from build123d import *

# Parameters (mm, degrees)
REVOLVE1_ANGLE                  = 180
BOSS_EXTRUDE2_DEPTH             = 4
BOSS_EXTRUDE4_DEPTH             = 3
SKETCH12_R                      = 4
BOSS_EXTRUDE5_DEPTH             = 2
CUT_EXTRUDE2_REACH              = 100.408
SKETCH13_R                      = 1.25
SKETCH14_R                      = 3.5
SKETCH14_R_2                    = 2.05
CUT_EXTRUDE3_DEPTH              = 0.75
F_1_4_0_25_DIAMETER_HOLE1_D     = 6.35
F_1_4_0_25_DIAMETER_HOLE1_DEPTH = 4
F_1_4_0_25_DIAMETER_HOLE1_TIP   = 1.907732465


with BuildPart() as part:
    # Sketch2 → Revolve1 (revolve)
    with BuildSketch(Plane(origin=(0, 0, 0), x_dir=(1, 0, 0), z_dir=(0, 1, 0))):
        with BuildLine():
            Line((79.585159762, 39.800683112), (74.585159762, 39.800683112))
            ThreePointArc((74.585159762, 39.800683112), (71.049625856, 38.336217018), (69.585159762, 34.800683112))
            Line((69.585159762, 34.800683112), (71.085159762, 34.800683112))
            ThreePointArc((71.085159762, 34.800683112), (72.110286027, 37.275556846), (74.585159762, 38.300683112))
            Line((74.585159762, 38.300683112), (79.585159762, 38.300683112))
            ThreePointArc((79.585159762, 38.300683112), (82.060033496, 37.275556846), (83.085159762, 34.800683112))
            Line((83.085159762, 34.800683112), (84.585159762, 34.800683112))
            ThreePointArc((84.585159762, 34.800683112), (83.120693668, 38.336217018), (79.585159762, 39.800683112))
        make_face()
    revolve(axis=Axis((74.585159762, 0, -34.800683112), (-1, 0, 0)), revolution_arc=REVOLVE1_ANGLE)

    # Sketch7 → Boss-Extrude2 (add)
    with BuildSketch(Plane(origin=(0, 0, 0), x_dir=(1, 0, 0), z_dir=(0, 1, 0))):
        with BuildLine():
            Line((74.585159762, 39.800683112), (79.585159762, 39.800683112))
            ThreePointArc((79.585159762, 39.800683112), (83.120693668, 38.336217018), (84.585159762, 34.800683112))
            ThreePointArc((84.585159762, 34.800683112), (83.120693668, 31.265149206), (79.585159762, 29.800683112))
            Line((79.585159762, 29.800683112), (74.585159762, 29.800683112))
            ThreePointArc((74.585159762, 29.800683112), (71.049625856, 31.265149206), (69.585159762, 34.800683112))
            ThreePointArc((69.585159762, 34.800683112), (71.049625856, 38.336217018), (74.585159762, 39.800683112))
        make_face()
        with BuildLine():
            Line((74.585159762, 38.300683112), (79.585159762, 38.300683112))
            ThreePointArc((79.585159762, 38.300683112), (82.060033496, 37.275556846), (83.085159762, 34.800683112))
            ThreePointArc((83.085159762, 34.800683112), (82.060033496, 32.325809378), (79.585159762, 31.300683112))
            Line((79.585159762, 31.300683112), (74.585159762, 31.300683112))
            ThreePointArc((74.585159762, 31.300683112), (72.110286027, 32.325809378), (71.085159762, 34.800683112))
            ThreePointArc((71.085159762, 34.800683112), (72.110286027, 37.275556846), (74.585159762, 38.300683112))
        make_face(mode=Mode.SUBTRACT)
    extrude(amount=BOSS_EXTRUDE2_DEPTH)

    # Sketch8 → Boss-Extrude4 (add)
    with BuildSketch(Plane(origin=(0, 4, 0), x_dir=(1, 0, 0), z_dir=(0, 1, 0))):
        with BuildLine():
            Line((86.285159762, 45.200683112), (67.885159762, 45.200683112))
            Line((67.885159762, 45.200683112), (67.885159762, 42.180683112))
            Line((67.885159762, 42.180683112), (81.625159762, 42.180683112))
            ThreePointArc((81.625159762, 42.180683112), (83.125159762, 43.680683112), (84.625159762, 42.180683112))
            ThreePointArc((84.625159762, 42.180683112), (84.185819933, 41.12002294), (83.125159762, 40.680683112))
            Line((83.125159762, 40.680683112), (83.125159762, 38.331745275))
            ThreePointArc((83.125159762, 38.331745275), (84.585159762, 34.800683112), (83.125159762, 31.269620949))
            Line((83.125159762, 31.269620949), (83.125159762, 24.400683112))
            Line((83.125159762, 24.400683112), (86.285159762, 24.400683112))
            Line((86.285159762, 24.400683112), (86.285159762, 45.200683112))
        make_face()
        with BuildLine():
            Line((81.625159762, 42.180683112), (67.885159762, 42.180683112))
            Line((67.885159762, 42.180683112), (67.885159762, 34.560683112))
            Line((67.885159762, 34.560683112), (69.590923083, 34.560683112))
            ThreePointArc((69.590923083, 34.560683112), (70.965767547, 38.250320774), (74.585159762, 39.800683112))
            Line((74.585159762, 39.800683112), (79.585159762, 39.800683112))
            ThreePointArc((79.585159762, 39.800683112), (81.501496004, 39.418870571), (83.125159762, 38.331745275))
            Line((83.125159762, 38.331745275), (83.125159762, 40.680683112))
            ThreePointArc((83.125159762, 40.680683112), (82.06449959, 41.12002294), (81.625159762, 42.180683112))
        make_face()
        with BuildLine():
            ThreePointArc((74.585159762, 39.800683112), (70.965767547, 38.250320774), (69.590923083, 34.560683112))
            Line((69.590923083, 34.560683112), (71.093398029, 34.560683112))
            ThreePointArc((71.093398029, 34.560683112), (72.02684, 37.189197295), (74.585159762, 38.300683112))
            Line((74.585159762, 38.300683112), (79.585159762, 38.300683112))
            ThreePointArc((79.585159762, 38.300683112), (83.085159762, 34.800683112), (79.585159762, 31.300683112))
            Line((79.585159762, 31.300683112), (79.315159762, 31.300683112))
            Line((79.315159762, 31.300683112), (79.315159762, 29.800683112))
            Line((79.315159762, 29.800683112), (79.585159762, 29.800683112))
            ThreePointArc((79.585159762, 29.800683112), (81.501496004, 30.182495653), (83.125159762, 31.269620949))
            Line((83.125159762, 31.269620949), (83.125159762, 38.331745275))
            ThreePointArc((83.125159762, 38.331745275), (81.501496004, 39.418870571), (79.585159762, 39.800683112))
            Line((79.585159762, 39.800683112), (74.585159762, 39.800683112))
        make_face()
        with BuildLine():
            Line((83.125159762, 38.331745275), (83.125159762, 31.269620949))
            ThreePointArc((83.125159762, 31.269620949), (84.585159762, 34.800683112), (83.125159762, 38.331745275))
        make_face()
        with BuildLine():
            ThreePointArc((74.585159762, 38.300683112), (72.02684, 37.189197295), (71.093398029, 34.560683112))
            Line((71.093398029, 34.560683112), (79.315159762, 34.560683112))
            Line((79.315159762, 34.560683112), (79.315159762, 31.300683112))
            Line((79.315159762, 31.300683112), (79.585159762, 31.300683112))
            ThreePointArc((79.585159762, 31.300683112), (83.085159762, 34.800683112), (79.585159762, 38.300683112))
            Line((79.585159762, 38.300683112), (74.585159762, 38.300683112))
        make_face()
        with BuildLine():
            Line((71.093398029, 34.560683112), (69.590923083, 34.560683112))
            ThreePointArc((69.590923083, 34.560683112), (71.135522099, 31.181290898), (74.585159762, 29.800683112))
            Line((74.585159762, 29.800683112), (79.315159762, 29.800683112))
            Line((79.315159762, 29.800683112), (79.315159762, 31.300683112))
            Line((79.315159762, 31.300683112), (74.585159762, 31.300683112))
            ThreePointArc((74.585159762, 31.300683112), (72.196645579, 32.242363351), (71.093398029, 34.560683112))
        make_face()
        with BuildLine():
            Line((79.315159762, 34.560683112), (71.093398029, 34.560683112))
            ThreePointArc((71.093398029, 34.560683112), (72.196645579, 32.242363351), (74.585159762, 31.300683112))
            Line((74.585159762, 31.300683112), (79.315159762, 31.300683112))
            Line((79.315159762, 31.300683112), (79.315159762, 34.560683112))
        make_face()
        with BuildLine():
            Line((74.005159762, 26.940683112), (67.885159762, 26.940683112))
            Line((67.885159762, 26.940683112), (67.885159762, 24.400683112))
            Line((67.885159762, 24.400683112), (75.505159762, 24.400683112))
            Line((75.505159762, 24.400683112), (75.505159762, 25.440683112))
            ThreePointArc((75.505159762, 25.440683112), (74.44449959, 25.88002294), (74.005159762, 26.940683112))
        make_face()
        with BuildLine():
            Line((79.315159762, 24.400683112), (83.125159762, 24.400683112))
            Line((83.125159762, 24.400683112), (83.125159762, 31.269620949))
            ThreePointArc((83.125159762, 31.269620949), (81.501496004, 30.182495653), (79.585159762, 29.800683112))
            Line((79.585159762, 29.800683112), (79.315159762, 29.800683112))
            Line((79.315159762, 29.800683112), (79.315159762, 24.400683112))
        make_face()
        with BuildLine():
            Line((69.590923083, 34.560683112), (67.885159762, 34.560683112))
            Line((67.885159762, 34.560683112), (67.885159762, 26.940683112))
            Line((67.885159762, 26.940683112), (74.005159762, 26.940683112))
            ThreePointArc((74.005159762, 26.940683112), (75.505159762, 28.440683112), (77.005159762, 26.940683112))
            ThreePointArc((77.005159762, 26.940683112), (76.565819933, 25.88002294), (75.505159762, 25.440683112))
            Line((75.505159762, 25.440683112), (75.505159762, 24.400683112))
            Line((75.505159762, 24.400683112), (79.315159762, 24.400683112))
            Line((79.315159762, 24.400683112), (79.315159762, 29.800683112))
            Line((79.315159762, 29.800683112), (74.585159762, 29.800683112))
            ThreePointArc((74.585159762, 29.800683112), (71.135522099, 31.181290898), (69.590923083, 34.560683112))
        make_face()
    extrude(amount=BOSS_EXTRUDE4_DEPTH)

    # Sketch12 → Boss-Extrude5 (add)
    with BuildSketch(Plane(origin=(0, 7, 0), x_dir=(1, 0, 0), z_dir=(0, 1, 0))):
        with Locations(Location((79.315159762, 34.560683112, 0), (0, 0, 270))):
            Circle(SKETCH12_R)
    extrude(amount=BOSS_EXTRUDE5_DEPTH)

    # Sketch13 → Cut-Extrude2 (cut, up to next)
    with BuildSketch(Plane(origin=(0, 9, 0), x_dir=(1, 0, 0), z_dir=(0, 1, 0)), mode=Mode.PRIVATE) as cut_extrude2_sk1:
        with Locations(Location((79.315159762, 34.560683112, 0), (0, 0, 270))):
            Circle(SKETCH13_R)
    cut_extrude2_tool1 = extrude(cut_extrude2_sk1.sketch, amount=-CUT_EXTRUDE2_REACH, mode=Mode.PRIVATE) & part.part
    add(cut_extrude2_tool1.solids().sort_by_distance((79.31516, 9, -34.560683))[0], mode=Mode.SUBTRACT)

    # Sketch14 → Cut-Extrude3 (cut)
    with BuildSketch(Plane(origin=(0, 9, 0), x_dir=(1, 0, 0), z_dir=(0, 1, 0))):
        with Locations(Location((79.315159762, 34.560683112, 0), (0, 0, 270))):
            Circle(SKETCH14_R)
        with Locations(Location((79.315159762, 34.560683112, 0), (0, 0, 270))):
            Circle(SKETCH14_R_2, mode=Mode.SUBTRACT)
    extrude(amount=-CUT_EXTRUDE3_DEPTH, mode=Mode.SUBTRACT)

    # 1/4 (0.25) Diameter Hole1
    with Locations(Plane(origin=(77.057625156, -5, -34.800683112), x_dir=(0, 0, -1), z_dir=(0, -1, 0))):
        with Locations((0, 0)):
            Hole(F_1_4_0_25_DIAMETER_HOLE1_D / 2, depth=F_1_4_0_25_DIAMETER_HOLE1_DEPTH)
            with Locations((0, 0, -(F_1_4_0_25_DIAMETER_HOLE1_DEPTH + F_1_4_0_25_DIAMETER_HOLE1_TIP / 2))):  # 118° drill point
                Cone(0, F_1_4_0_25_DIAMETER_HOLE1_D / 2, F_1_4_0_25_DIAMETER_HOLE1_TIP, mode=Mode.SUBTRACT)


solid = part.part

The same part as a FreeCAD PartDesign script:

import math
import FreeCAD as App
import Part
import Sketcher
Q = App.Units.Quantity


def add_polygon(sketch, points):
    """Adds a closed chain of lines whose ends are joined by coincident constraints."""
    first, n = sketch.GeometryCount, len(points)
    for a, b in zip(points, points[1:] + points[:1]):
        sketch.addGeometry(Part.LineSegment(App.Vector(*a, 0), App.Vector(*b, 0)), False)
    for i in range(n):
        sketch.addConstraint(Sketcher.Constraint("Coincident", first + i, 2, first + (i + 1) % n, 1))

doc = App.newDocument("Part")
body = doc.addObject("PartDesign::Body", "Body")

# Sketch on XZ plane
sketch1 = body.newObject("Sketcher::SketchObject", "Sketch")
sketch1.AttachmentSupport = (doc.getObject("XZ_Plane"), [""])
sketch1.MapMode = "FlatFace"
sketch1.addGeometry([
    Part.LineSegment(App.Vector(79.6, -39.8, 0), App.Vector(74.6, -39.8, 0)),  # 0
    Part.ArcOfCircle(Part.Circle(App.Vector(74.6, -34.8, 0), App.Vector(0, 0, 1), 5), math.radians(180), math.radians(270)),  # 1
    Part.LineSegment(App.Vector(69.6, -34.8, 0), App.Vector(71.1, -34.8, 0)),  # 2
    Part.ArcOfCircle(Part.Circle(App.Vector(74.6, -34.8, 0), App.Vector(0, 0, 1), 3.5), math.radians(180), math.radians(270)),  # 3
    Part.LineSegment(App.Vector(74.6, -38.3, 0), App.Vector(79.6, -38.3, 0)),  # 4
    Part.ArcOfCircle(Part.Circle(App.Vector(79.6, -34.8, 0), App.Vector(0, 0, 1), 3.5), math.radians(-90), math.radians(0)),  # 5
    Part.LineSegment(App.Vector(83.1, -34.8, 0), App.Vector(84.6, -34.8, 0)),  # 6
    Part.ArcOfCircle(Part.Circle(App.Vector(79.6, -34.8, 0), App.Vector(0, 0, 1), 5), math.radians(-90), math.radians(0)),  # 7
], False)
sketch1.addGeometry(Part.LineSegment(App.Vector(84.6, -34.8, 0), App.Vector(69.6, -34.8, 0)), True)  # axis
sketch1.addConstraint([
    Sketcher.Constraint("Tangent", 0, 2, 1, 2),
    Sketcher.Constraint("Coincident", 1, 1, 2, 1),
    Sketcher.Constraint("Coincident", 2, 2, 3, 1),
    Sketcher.Constraint("Tangent", 3, 2, 4, 1),
    Sketcher.Constraint("Tangent", 4, 2, 5, 1),
    Sketcher.Constraint("Coincident", 5, 2, 6, 1),
    Sketcher.Constraint("Coincident", 6, 2, 7, 2),
    Sketcher.Constraint("Tangent", 7, 1, 0, 1),
    Sketcher.Constraint("Horizontal", 0),
    Sketcher.Constraint("Horizontal", 2),
    Sketcher.Constraint("Horizontal", 4),
    Sketcher.Constraint("Horizontal", 6),
    Sketcher.Constraint("Horizontal", 8),
    Sketcher.Constraint("Coincident", 3, 3, 1, 3),
    Sketcher.Constraint("Coincident", 7, 3, 5, 3),
    Sketcher.Constraint("Coincident", 8, 1, 6, 2),
    Sketcher.Constraint("Coincident", 8, 2, 1, 1),
    Sketcher.Constraint("Equal", 3, 5),
    Sketcher.Constraint("Horizontal", 7, 3, 1, 1),
    Sketcher.Constraint("Radius", 1, Q("5 mm")),
    Sketcher.Constraint("Radius", 3, Q("3.5 mm")),
    Sketcher.Constraint("DistanceX", 0, 2, 0, 1, Q("5 mm")),
    Sketcher.Constraint("DistanceX", -1, 1, 1, 3, Q("74.58516 mm")),
    Sketcher.Constraint("DistanceY", 1, 3, -1, 1, Q("34.800683 mm")),
])
revolution = body.newObject("PartDesign::Revolution", "Revolution")
revolution.Profile = sketch1
revolution.ReferenceAxis = (sketch1, ["Axis0"])
revolution.Angle = 180

# Sketch on XZ plane
sketch2 = body.newObject("Sketcher::SketchObject", "Sketch001")
sketch2.AttachmentSupport = (doc.getObject("XZ_Plane"), [""])
sketch2.MapMode = "FlatFace"
sketch2.addGeometry([
    Part.LineSegment(App.Vector(79.6, -39.8, 0), App.Vector(74.6, -39.8, 0)),  # 0
    Part.ArcOfCircle(Part.Circle(App.Vector(74.6, -34.8, 0), App.Vector(0, 0, 1), 5), math.radians(180), math.radians(270)),  # 1
    Part.ArcOfCircle(Part.Circle(App.Vector(74.6, -34.8, 0), App.Vector(0, 0, 1), 5), math.radians(90), math.radians(180)),  # 2
    Part.LineSegment(App.Vector(74.6, -29.8, 0), App.Vector(79.6, -29.8, 0)),  # 3
    Part.ArcOfCircle(Part.Circle(App.Vector(79.6, -34.8, 0), App.Vector(0, 0, 1), 5), math.radians(0), math.radians(90)),  # 4
    Part.ArcOfCircle(Part.Circle(App.Vector(79.6, -34.8, 0), App.Vector(0, 0, 1), 5), math.radians(-90), math.radians(0)),  # 5
    Part.LineSegment(App.Vector(74.6, -38.3, 0), App.Vector(79.6, -38.3, 0)),  # 6
    Part.ArcOfCircle(Part.Circle(App.Vector(79.6, -34.8, 0), App.Vector(0, 0, 1), 3.5), math.radians(-90), math.radians(0)),  # 7
    Part.ArcOfCircle(Part.Circle(App.Vector(79.6, -34.8, 0), App.Vector(0, 0, 1), 3.5), math.radians(0), math.radians(90)),  # 8
    Part.LineSegment(App.Vector(79.6, -31.3, 0), App.Vector(74.6, -31.3, 0)),  # 9
    Part.ArcOfCircle(Part.Circle(App.Vector(74.6, -34.8, 0), App.Vector(0, 0, 1), 3.5), math.radians(90), math.radians(180)),  # 10
    Part.ArcOfCircle(Part.Circle(App.Vector(74.6, -34.8, 0), App.Vector(0, 0, 1), 3.5), math.radians(180), math.radians(270)),  # 11
], False)
sketch2.addConstraint([
    Sketcher.Constraint("Tangent", 0, 2, 1, 2),
    Sketcher.Constraint("Tangent", 1, 1, 2, 2),
    Sketcher.Constraint("Tangent", 2, 1, 3, 1),
    Sketcher.Constraint("Tangent", 3, 2, 4, 2),
    Sketcher.Constraint("Tangent", 4, 1, 5, 2),
    Sketcher.Constraint("Tangent", 5, 1, 0, 1),
    Sketcher.Constraint("Tangent", 6, 2, 7, 1),
    Sketcher.Constraint("Tangent", 7, 2, 8, 1),
    Sketcher.Constraint("Tangent", 8, 2, 9, 1),
    Sketcher.Constraint("Tangent", 9, 2, 10, 1),
    Sketcher.Constraint("Tangent", 10, 2, 11, 1),
    Sketcher.Constraint("Tangent", 11, 2, 6, 1),
    Sketcher.Constraint("Horizontal", 0),
    Sketcher.Constraint("Horizontal", 3),
    Sketcher.Constraint("Horizontal", 6),
    Sketcher.Constraint("Horizontal", 9),
    Sketcher.Constraint("Coincident", 7, 3, 4, 3),
    Sketcher.Constraint("Coincident", 10, 3, 1, 3),
    Sketcher.Constraint("Equal", 1, 2),
    Sketcher.Constraint("Equal", 2, 4),
    Sketcher.Constraint("Equal", 7, 8),
    Sketcher.Constraint("Horizontal", 11, 3, 1, 1),
    Sketcher.Constraint("Horizontal", 1, 1, 4, 1),
    Sketcher.Constraint("Horizontal", 4, 1, 7, 2),
    Sketcher.Constraint("Horizontal", 7, 2, 10, 2),
    Sketcher.Constraint("Radius", 1, Q("5 mm")),
    Sketcher.Constraint("Radius", 7, Q("3.5 mm")),
    Sketcher.Constraint("DistanceX", 0, 2, 0, 1, Q("5 mm")),
    Sketcher.Constraint("DistanceX", -1, 1, 1, 3, Q("74.58516 mm")),
    Sketcher.Constraint("DistanceY", 1, 3, -1, 1, Q("34.800683 mm")),
])
pad1 = body.newObject("PartDesign::Pad", "Pad")
pad1.Profile = sketch2
pad1.Length = 4
pad1.Reversed = True

# Sketch on XZ plane
sketch3 = body.newObject("Sketcher::SketchObject", "Sketch002")
sketch3.AttachmentSupport = (doc.getObject("XZ_Plane"), [""])
sketch3.MapMode = "FlatFace"
sketch3.AttachmentOffset = App.Placement(App.Vector(0, 0, -4), App.Rotation())
add_polygon(sketch3, [(86.3, -24.4), (86.3, -45.2), (67.9, -45.2), (67.9, -24.4)])  # lines 0-3
sketch3.addGeometry(Part.ArcOfCircle(Part.Circle(App.Vector(83.1, -42.2, 0), App.Vector(0, 0, 1), 1.5), math.radians(180), math.radians(360)), False)  # 4
sketch3.addGeometry(Part.ArcOfCircle(Part.Circle(App.Vector(83.1, -42.2, 0), App.Vector(0, 0, 1), 1.5), math.radians(0), math.radians(90)), False)  # 5
sketch3.addGeometry(Part.ArcOfCircle(Part.Circle(App.Vector(83.1, -42.2, 0), App.Vector(0, 0, 1), 1.5), math.radians(90), math.radians(180)), False)  # 6
sketch3.addGeometry(Part.ArcOfCircle(Part.Circle(App.Vector(75.5, -26.9, 0), App.Vector(0, 0, 1), 1.5), math.radians(180), math.radians(360)), False)  # 7
sketch3.addGeometry(Part.ArcOfCircle(Part.Circle(App.Vector(75.5, -26.9, 0), App.Vector(0, 0, 1), 1.5), math.radians(0), math.radians(90)), False)  # 8
sketch3.addGeometry(Part.ArcOfCircle(Part.Circle(App.Vector(75.5, -26.9, 0), App.Vector(0, 0, 1), 1.5), math.radians(90), math.radians(180)), False)  # 9
sketch3.addConstraint([
    Sketcher.Constraint("Tangent", 4, 2, 5, 1),
    Sketcher.Constraint("Tangent", 5, 2, 6, 1),
    Sketcher.Constraint("Tangent", 6, 2, 4, 1),
    Sketcher.Constraint("Tangent", 7, 2, 8, 1),
    Sketcher.Constraint("Tangent", 8, 2, 9, 1),
    Sketcher.Constraint("Tangent", 9, 2, 7, 1),
    Sketcher.Constraint("Vertical", 0),
    Sketcher.Constraint("Horizontal", 1),
    Sketcher.Constraint("Vertical", 2),
    Sketcher.Constraint("Horizontal", 3),
    Sketcher.Constraint("Equal", 6, 7),
    Sketcher.Constraint("Horizontal", 6, 3, 4, 2),
    Sketcher.Constraint("Horizontal", 4, 2, 6, 2),
    Sketcher.Constraint("Horizontal", 9, 3, 7, 2),
    Sketcher.Constraint("Horizontal", 7, 2, 9, 2),
    Sketcher.Constraint("Vertical", 6, 3, 5, 2),
    Sketcher.Constraint("Vertical", 9, 3, 8, 2),
    Sketcher.Constraint("Radius", 4, Q("1.5 mm")),
    Sketcher.Constraint("DistanceX", 1, 2, 1, 1, Q("18.4 mm")),
    Sketcher.Constraint("DistanceY", 0, 2, 0, 1, Q("20.8 mm")),
    Sketcher.Constraint("DistanceX", 7, 3, 6, 3, Q("7.62 mm")),
    Sketcher.Constraint("DistanceY", 6, 3, 7, 3, Q("15.24 mm")),
    Sketcher.Constraint("DistanceX", 4, 3, 0, 2, Q("3.16 mm")),
    Sketcher.Constraint("DistanceY", 0, 2, 4, 3, Q("3.02 mm")),
    Sketcher.Constraint("DistanceX", -1, 1, 4, 3, Q("83.12516 mm")),
    Sketcher.Constraint("DistanceY", 4, 3, -1, 1, Q("42.180683 mm")),
])
pad2 = body.newObject("PartDesign::Pad", "Pad001")
pad2.Profile = sketch3
pad2.Length = 3
pad2.Reversed = True

# Sketch on XZ plane
sketch4 = body.newObject("Sketcher::SketchObject", "Sketch003")
sketch4.AttachmentSupport = (doc.getObject("XZ_Plane"), [""])
sketch4.MapMode = "FlatFace"
sketch4.AttachmentOffset = App.Placement(App.Vector(0, 0, -7), App.Rotation())
sketch4.addGeometry(Part.Circle(App.Vector(79.3, -34.6, 0), App.Vector(0, 0, 1), 4), False)
sketch4.addConstraint([
    Sketcher.Constraint("Diameter", 0, Q("8 mm")),
    Sketcher.Constraint("DistanceX", -1, 1, 0, 3, Q("79.31516 mm")),
    Sketcher.Constraint("DistanceY", 0, 3, -1, 1, Q("34.560683 mm")),
])
pad3 = body.newObject("PartDesign::Pad", "Pad002")
pad3.Profile = sketch4
pad3.Length = 2
pad3.Reversed = True

# Sketch on XZ plane
sketch5 = body.newObject("Sketcher::SketchObject", "Sketch004")
sketch5.AttachmentSupport = (doc.getObject("XZ_Plane"), [""])
sketch5.MapMode = "FlatFace"
sketch5.AttachmentOffset = App.Placement(App.Vector(0, 0, -9), App.Rotation())
sketch5.addGeometry(Part.Circle(App.Vector(79.3, -34.6, 0), App.Vector(0, 0, 1), 1.2), False)
sketch5.addConstraint([
    Sketcher.Constraint("Diameter", 0, Q("2.5 mm")),
    Sketcher.Constraint("DistanceX", -1, 1, 0, 3, Q("79.31516 mm")),
    Sketcher.Constraint("DistanceY", 0, 3, -1, 1, Q("34.560683 mm")),
])
pocket1 = body.newObject("PartDesign::Pocket", "Pocket")
pocket1.Profile = sketch5
pocket1.Type = "UpToFirst"
pocket1.Reversed = True

# Sketch on XZ plane
sketch6 = body.newObject("Sketcher::SketchObject", "Sketch005")
sketch6.AttachmentSupport = (doc.getObject("XZ_Plane"), [""])
sketch6.MapMode = "FlatFace"
sketch6.AttachmentOffset = App.Placement(App.Vector(0, 0, -9), App.Rotation())
sketch6.addGeometry([
    Part.Circle(App.Vector(79.3, -34.6, 0), App.Vector(0, 0, 1), 3.5),
    Part.Circle(App.Vector(79.3, -34.6, 0), App.Vector(0, 0, 1), 2),
], False)
sketch6.addConstraint([
    Sketcher.Constraint("Coincident", 1, 3, 0, 3),
    Sketcher.Constraint("Diameter", 0, Q("7 mm")),
    Sketcher.Constraint("Diameter", 1, Q("4.1 mm")),
    Sketcher.Constraint("DistanceX", -1, 1, 0, 3, Q("79.31516 mm")),
    Sketcher.Constraint("DistanceY", 0, 3, -1, 1, Q("34.560683 mm")),
])
pocket2 = body.newObject("PartDesign::Pocket", "Pocket001")
pocket2.Profile = sketch6
pocket2.Length = 0.75
pocket2.Reversed = True

# Sketch on XZ plane
sketch7 = body.newObject("Sketcher::SketchObject", "Sketch006")
sketch7.AttachmentSupport = (doc.getObject("XZ_Plane"), [""])
sketch7.MapMode = "FlatFace"
sketch7.AttachmentOffset = App.Placement(App.Vector(0, 0, 5), App.Rotation())
sketch7.addGeometry(Part.Circle(App.Vector(77.1, -34.8, 0), App.Vector(0, 0, 1), 3.2), False)
sketch7.addConstraint([
    Sketcher.Constraint("Diameter", 0, Q("6.35 mm")),
    Sketcher.Constraint("DistanceX", -1, 1, 0, 3, Q("77.057625 mm")),
    Sketcher.Constraint("DistanceY", 0, 3, -1, 1, Q("34.800683 mm")),
])
doc.recompute()
hole = body.newObject("PartDesign::Hole", "Hole")
hole.Profile = sketch7
hole.ThreadType = "None"
hole.Diameter = 6.35
hole.DepthType = "Dimension"
hole.Depth = 4
hole.DrillPoint = "Angled"
hole.DrillPointAngle = 118

doc.recompute()
